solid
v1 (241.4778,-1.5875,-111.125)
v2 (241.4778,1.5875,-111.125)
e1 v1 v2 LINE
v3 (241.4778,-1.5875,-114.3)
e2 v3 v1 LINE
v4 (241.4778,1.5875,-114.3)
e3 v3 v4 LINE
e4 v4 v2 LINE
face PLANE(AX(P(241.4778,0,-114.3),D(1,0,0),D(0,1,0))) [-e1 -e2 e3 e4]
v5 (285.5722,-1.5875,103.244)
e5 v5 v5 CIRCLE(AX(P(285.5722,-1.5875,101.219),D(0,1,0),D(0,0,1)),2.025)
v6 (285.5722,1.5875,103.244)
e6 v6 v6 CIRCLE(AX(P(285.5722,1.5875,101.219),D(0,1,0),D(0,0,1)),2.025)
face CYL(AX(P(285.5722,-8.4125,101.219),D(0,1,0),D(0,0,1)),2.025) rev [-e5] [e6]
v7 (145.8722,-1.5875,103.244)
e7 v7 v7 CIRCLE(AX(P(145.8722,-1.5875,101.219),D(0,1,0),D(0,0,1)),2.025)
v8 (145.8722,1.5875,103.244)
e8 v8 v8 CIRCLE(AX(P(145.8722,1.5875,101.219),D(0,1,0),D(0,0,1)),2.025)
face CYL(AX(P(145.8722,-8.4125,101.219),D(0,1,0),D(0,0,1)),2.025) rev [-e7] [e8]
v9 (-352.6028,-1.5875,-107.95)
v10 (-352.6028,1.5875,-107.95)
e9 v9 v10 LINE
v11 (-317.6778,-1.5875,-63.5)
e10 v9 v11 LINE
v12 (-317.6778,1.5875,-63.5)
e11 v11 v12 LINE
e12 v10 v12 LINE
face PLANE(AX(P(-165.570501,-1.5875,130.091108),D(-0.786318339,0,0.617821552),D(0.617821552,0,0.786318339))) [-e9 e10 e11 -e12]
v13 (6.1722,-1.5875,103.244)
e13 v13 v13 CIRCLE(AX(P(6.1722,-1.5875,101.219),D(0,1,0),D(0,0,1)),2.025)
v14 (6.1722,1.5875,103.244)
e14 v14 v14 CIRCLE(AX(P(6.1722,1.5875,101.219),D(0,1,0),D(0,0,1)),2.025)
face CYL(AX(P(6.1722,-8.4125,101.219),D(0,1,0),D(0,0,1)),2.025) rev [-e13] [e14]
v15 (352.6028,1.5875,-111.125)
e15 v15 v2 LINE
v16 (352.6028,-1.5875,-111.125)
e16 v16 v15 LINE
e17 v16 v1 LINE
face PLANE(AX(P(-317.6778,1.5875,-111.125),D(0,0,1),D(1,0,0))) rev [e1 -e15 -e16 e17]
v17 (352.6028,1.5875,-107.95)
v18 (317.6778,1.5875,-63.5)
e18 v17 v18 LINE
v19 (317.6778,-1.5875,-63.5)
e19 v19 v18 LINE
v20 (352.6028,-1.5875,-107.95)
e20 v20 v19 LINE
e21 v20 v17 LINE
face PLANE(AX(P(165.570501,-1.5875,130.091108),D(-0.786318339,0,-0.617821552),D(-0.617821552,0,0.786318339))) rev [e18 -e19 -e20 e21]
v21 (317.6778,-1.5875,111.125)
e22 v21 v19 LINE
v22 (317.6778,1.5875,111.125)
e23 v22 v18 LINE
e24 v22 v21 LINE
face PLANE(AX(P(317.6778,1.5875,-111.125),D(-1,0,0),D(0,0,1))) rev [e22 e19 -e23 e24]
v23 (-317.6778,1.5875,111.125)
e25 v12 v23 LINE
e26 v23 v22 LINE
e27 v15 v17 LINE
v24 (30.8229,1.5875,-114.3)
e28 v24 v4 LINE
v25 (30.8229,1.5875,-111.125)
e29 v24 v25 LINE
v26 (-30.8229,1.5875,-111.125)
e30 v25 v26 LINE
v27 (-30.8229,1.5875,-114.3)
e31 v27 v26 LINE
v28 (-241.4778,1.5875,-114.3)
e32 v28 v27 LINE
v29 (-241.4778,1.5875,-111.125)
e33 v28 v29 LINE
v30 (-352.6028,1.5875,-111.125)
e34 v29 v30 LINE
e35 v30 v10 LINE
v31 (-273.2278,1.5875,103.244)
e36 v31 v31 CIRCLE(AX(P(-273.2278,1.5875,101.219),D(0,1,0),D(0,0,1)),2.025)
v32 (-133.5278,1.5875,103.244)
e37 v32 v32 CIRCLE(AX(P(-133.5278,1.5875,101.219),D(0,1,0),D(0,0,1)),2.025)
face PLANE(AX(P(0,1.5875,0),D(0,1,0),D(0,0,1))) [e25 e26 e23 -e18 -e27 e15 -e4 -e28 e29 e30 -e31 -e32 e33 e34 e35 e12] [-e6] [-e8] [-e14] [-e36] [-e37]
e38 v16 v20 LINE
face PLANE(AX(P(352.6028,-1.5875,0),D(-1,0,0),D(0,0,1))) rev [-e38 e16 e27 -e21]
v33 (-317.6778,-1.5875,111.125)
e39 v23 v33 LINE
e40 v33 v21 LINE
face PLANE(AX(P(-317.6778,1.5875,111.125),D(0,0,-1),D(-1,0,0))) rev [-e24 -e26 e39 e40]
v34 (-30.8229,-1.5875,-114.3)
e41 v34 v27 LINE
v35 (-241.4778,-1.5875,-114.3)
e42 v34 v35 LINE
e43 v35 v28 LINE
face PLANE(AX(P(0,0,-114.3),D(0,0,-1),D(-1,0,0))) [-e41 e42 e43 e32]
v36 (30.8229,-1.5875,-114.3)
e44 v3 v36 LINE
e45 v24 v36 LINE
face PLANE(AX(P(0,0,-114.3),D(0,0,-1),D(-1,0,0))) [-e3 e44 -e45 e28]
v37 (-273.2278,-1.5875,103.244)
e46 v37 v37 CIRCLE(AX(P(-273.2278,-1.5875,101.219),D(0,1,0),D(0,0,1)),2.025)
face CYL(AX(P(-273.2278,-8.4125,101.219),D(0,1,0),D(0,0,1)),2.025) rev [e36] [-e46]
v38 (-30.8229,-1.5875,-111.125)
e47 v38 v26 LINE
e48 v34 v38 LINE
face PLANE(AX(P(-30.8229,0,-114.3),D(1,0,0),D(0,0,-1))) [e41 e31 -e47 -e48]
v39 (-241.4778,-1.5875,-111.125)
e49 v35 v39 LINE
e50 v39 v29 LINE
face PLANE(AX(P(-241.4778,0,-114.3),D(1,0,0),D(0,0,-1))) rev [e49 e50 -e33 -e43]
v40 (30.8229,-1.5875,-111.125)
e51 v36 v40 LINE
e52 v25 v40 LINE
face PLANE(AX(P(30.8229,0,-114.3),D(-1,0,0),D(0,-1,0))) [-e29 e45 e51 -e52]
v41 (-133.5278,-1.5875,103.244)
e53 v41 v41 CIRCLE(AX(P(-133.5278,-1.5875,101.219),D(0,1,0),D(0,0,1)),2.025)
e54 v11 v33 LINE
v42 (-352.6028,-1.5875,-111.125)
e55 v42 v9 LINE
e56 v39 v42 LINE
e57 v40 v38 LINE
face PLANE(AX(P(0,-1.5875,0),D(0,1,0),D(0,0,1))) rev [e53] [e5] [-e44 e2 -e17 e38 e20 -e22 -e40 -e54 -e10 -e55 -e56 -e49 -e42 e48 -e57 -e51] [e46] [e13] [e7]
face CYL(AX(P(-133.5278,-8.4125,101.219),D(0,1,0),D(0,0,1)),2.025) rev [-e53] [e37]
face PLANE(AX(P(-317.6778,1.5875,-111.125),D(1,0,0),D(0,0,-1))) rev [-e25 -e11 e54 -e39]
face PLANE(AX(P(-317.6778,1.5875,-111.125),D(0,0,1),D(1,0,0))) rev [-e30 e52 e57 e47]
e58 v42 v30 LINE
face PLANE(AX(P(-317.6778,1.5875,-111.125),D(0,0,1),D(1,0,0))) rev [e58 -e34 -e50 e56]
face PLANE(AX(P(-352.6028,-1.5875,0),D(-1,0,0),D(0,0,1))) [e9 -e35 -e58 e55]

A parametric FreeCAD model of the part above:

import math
import FreeCAD as App
import Part
import Sketcher
Q = App.Units.Quantity


def add_polygon(sketch, points):
    """Adds a closed chain of lines whose ends are joined by coincident constraints."""
    first, n = sketch.GeometryCount, len(points)
    for a, b in zip(points, points[1:] + points[:1]):
        sketch.addGeometry(Part.LineSegment(App.Vector(*a, 0), App.Vector(*b, 0)), False)
    for i in range(n):
        sketch.addConstraint(Sketcher.Constraint("Coincident", first + i, 2, first + (i + 1) % n, 1))

doc = App.newDocument("Part")
body = doc.addObject("PartDesign::Body", "Body")

# Sketch on XZ plane
sketch1 = body.newObject("Sketcher::SketchObject", "Sketch")
sketch1.AttachmentSupport = (doc.getObject("XZ_Plane"), [""])
sketch1.MapMode = "FlatFace"
add_polygon(sketch1, [(-318, -111), (-318, 111), (318, 111), (318, -111)])  # lines 0-3
sketch1.addConstraint(Sketcher.Constraint("Vertical", 0))
sketch1.addConstraint(Sketcher.Constraint("Horizontal", 1))
sketch1.addConstraint(Sketcher.Constraint("Vertical", 2))
sketch1.addConstraint(Sketcher.Constraint("Horizontal", 3))
sketch1.addConstraint(Sketcher.Constraint("Symmetric", 0, 2, 2, 2, -1, 1))
sketch1.addConstraint(Sketcher.Constraint("DistanceY", 0, 1, 0, 2, Q("8.75 in")))
sketch1.addConstraint(Sketcher.Constraint("DistanceX", 1, 1, 1, 2, Q("25.014 in")))
pad1 = body.newObject("PartDesign::Pad", "Pad")
pad1.Profile = sketch1
pad1.Length = Q("0.125 in")
pad1.Midplane = True

# Sketch on XY plane
sketch2 = body.newObject("Sketcher::SketchObject", "Sketch001")
sketch2.AttachmentSupport = (doc.getObject("XY_Plane"), [""])
sketch2.MapMode = "FlatFace"
sketch2.AttachmentOffset = App.Placement(App.Vector(0, 0, -4.375 * 25.4), App.Rotation())
add_polygon(sketch2, [(241.5, 1.6), (241.5, -1.6), (30.8, -1.6), (30.8, 1.6)])  # lines 0-3
add_polygon(sketch2, [(-30.8, 1.6), (-30.8, -1.6), (-241.5, -1.6), (-241.5, 1.6)])  # lines 4-7
sketch2.addConstraint(Sketcher.Constraint("Vertical", 0))
sketch2.addConstraint(Sketcher.Constraint("Horizontal", 1))
sketch2.addConstraint(Sketcher.Constraint("Vertical", 2))
sketch2.addConstraint(Sketcher.Constraint("Horizontal", 3))
sketch2.addConstraint(Sketcher.Constraint("Vertical", 4))
sketch2.addConstraint(Sketcher.Constraint("Horizontal", 5))
sketch2.addConstraint(Sketcher.Constraint("Vertical", 6))
sketch2.addConstraint(Sketcher.Constraint("Horizontal", 7))
sketch2.addConstraint(Sketcher.Constraint("Symmetric", 2, 2, 4, 2, -1, 1))
sketch2.addConstraint(Sketcher.Constraint("Symmetric", 0, 2, 6, 2, -1, 1))
sketch2.addConstraint(Sketcher.Constraint("Horizontal", 1, 2, 4, 2))
sketch2.addConstraint(Sketcher.Constraint("DistanceY", 0, 2, 0, 1, Q("0.125 in")))
sketch2.addConstraint(Sketcher.Constraint("DistanceX", 1, 2, 1, 1, Q("8.2935 in")))
sketch2.addConstraint(Sketcher.Constraint("DistanceX", -1, 1, 0, 2, Q("9.507 in")))
pad2 = body.newObject("PartDesign::Pad", "Pad001")
pad2.Profile = sketch2
pad2.Length = Q("0.125 in")
pad2.Reversed = True

# Sketch on XZ plane
sketch3 = body.newObject("Sketcher::SketchObject", "Sketch002")
sketch3.AttachmentSupport = (doc.getObject("XZ_Plane"), [""])
sketch3.MapMode = "FlatFace"
sketch3.AttachmentOffset = App.Placement(App.Vector(0, 0, -0.0625 * 25.4), App.Rotation())
add_polygon(sketch3, [(-317.7, -63.5), (-317.7, -111.1), (-352.6, -111.1), (-352.6, -108)])  # lines 0-3
sketch3.addConstraint(Sketcher.Constraint("Vertical", 0))
sketch3.addConstraint(Sketcher.Constraint("Horizontal", 1))
sketch3.addConstraint(Sketcher.Constraint("Vertical", 2))
sketch3.addConstraint(Sketcher.Constraint("DistanceY", 3, 2, -1, 1, Q("2.5 in")))
sketch3.addConstraint(Sketcher.Constraint("DistanceX", 1, 2, 1, 1, Q("1.375 in")))
sketch3.addConstraint(Sketcher.Constraint("DistanceY", 0, 2, 0, 1, Q("1.875 in")))
sketch3.addConstraint(Sketcher.Constraint("DistanceY", 2, 1, 2, 2, Q("0.125 in")))
sketch3.addConstraint(Sketcher.Constraint("DistanceX", 0, 2, -1, 1, Q("12.507 in")))
pad3 = body.newObject("PartDesign::Pad", "Pad002")
pad3.Profile = sketch3
pad3.Length = Q("0.125 in")
doc.recompute()

mirrored = body.newObject("PartDesign::Mirrored", "Mirrored")
mirrored.Originals = [pad3]
mirrored.MirrorPlane = (doc.getObject("YZ_Plane"), [""])
body.Tip = mirrored

# Sketch on XZ plane
sketch4 = body.newObject("Sketcher::SketchObject", "Sketch003")
sketch4.AttachmentSupport = (doc.getObject("XZ_Plane"), [""])
sketch4.MapMode = "FlatFace"
sketch4.AttachmentOffset = App.Placement(App.Vector(0, 0, -0.0625 * 25.4), App.Rotation())
sketch4.addGeometry(Part.ArcOfCircle(Part.Circle(App.Vector(-273.2, 101.2, 0), App.Vector(0, 0, 1), 2), math.radians(90), math.radians(180)), False)
sketch4.addGeometry(Part.ArcOfCircle(Part.Circle(App.Vector(-273.2, 101.2, 0), App.Vector(0, 0, 1), 2), math.radians(0), math.radians(90)), False)
sketch4.addGeometry(Part.ArcOfCircle(Part.Circle(App.Vector(-273.2, 101.2, 0), App.Vector(0, 0, 1), 2), math.radians(180), math.radians(360)), False)
sketch4.addConstraint(Sketcher.Constraint("Tangent", 0, 1, 1, 2))
sketch4.addConstraint(Sketcher.Constraint("Tangent", 1, 1, 2, 2))
sketch4.addConstraint(Sketcher.Constraint("Tangent", 2, 1, 0, 2))
sketch4.addConstraint(Sketcher.Constraint("Horizontal", 2, 3, 1, 1))
sketch4.addConstraint(Sketcher.Constraint("Horizontal", 1, 1, 2, 1))
sketch4.addConstraint(Sketcher.Constraint("Vertical", 2, 3, 0, 1))
sketch4.addConstraint(Sketcher.Constraint("Radius", 0, Q("2.025 mm")))
sketch4.addConstraint(Sketcher.Constraint("DistanceX", 0, 3, -1, 1, Q("10.757 in")))
sketch4.addConstraint(Sketcher.Constraint("DistanceY", -1, 1, 0, 3, Q("3.985 in")))
pocket1 = body.newObject("PartDesign::Pocket", "Pocket")
pocket1.Profile = sketch4
pocket1.Length = 10
pocket1.Reversed = True
doc.recompute()

linearpattern = body.newObject("PartDesign::LinearPattern", "LinearPattern")
linearpattern.Originals = [pocket1]
linearpattern.Direction = (doc.getObject("X_Axis"), [""])
linearpattern.Mode = "offset"
linearpattern.Offset = Q("5.5 in")
linearpattern.Occurrences = 5
body.Tip = linearpattern

doc.recompute()
